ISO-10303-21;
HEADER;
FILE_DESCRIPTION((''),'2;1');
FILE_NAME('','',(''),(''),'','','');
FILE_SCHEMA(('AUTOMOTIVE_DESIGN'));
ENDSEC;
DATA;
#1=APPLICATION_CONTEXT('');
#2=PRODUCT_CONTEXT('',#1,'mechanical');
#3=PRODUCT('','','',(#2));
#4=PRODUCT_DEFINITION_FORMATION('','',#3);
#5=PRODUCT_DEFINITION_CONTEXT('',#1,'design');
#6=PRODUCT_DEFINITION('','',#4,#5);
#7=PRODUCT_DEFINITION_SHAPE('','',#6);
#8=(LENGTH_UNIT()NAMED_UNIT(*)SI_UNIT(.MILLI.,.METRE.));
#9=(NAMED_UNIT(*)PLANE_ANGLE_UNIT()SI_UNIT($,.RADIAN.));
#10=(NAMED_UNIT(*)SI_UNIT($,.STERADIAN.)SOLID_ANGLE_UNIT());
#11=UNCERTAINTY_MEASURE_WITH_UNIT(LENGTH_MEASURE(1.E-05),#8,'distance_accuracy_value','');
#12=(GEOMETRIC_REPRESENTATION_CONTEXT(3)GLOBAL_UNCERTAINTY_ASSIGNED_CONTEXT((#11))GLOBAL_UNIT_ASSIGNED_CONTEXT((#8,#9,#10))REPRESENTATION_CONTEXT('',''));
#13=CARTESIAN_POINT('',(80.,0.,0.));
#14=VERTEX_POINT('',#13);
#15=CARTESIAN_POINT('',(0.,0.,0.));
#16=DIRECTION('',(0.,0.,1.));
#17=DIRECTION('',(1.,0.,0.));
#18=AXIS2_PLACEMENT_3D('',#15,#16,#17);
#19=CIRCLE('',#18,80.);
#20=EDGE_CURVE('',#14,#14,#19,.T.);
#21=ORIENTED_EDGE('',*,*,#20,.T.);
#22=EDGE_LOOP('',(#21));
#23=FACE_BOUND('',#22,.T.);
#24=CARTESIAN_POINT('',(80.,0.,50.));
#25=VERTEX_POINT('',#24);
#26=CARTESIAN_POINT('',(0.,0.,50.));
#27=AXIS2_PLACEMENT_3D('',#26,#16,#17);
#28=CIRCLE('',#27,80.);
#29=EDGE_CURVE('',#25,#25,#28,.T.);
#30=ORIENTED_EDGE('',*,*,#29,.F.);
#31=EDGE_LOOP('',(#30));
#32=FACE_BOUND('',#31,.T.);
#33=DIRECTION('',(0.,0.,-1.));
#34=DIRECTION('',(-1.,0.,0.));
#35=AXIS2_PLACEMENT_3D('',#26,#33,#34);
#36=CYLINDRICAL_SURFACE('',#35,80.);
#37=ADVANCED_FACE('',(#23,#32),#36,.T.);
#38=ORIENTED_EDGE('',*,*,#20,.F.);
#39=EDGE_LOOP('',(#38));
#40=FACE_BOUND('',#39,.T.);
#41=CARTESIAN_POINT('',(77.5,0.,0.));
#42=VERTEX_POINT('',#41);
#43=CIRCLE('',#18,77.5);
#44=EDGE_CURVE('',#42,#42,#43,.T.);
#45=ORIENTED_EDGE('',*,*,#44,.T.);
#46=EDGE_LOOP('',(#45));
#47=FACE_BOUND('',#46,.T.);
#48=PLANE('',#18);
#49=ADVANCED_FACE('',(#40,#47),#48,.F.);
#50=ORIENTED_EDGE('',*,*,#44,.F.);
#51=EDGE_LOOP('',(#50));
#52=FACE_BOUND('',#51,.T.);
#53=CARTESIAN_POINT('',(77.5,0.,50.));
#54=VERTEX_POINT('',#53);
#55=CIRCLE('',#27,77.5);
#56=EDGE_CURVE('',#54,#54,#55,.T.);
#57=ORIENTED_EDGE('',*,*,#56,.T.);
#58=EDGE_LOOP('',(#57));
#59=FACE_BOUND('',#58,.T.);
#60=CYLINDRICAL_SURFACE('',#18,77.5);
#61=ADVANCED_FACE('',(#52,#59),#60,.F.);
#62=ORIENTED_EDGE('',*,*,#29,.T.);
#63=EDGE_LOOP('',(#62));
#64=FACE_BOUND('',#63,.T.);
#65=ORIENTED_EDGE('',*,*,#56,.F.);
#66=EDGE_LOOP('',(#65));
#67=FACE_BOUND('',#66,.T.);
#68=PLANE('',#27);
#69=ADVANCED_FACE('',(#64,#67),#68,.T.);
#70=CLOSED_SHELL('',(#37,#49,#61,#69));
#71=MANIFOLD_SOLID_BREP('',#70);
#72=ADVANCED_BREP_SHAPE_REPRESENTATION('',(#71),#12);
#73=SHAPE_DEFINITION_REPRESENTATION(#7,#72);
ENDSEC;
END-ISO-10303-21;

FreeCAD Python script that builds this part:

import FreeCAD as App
import Part
import Sketcher

V = App.Vector
Q = App.Units.Quantity

doc = App.newDocument("Part")
body = doc.addObject("PartDesign::Body", "Body")

# Sketch on XY plane
sketch1 = body.newObject("Sketcher::SketchObject", "Sketch")
sketch1.AttachmentSupport = (doc.getObject("XY_Plane"), [""])
sketch1.MapMode = "FlatFace"
sketch1.addGeometry(Part.Circle(V(0, 0, 0), V(0, 0, 1), 80), False)
sketch1.addConstraint(Sketcher.Constraint("Coincident", 0, 3, -1, 1))
sketch1.addConstraint(Sketcher.Constraint("Diameter", 0, Q("160 mm")))
pad1 = body.newObject("PartDesign::Pad", "Pad")
pad1.Profile = sketch1
pad1.Length = 50

# Sketch on XY plane
sketch2 = body.newObject("Sketcher::SketchObject", "Sketch001")
sketch2.AttachmentSupport = (doc.getObject("XY_Plane"), [""])
sketch2.MapMode = "FlatFace"
sketch2.AttachmentOffset = App.Placement(V(0, 0, 50), App.Rotation())
sketch2.addGeometry(Part.Circle(V(0, 0, 0), V(0, 0, 1), 77.5), False)
sketch2.addConstraint(Sketcher.Constraint("Coincident", 0, 3, -1, 1))
sketch2.addConstraint(Sketcher.Constraint("Diameter", 0, Q("155 mm")))
pocket1 = body.newObject("PartDesign::Pocket", "Pocket")
pocket1.Profile = sketch2
pocket1.Length = 50

doc.recompute()
